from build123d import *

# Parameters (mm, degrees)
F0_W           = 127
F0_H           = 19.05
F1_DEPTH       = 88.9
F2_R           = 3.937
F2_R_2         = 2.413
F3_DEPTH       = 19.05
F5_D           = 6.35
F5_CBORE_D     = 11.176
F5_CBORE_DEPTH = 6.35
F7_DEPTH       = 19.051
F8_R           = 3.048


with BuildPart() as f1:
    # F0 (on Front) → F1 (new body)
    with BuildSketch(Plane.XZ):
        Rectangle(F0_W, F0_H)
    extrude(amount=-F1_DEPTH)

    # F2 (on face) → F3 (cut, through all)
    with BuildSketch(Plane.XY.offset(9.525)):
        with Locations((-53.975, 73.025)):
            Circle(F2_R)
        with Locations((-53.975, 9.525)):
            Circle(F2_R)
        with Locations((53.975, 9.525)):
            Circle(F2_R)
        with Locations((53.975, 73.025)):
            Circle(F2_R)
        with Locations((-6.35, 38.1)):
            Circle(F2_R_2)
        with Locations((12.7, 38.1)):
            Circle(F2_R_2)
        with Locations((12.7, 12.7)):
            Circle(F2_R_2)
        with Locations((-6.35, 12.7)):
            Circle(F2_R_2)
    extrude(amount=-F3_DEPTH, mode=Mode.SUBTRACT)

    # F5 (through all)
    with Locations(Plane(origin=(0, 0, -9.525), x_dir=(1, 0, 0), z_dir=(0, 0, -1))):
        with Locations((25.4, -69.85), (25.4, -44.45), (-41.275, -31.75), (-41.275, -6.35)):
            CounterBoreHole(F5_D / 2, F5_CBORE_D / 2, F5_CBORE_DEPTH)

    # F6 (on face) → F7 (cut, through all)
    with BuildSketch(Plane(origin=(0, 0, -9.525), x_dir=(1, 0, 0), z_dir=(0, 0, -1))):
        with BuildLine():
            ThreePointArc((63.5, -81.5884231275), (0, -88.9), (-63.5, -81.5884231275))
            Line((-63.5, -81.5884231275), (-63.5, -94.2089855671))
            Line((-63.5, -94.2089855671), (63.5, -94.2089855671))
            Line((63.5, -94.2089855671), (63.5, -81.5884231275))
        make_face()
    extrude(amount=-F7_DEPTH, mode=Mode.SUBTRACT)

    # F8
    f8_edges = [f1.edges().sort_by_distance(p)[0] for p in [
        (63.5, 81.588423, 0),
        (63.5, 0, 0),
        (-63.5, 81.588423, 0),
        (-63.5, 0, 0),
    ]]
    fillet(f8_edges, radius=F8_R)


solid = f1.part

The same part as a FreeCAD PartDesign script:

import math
import FreeCAD as App
import Part
import Sketcher

V = App.Vector
Q = App.Units.Quantity


def edges_at(feature, points):
    """Names of the edges that pass closest to the given points."""
    edges = feature.Shape.Edges
    near = lambda p: min(range(len(edges)), key=lambda i: edges[i].distToShape(Part.Vertex(*p))[0])
    return sorted({f"Edge{near(p) + 1}" for p in points})


def add_polygon(sketch, points):
    """Adds a closed chain of lines whose ends are joined by coincident constraints."""
    first, n = sketch.GeometryCount, len(points)
    for a, b in zip(points, points[1:] + points[:1]):
        sketch.addGeometry(Part.LineSegment(App.Vector(*a, 0), App.Vector(*b, 0)), False)
    for i in range(n):
        sketch.addConstraint(Sketcher.Constraint("Coincident", first + i, 2, first + (i + 1) % n, 1))

doc = App.newDocument("Part")
body = doc.addObject("PartDesign::Body", "Body")

sketch1 = body.newObject("Sketcher::SketchObject", "Sketch")
sketch1.AttachmentSupport = (doc.getObject("XZ_Plane"), [""])
sketch1.MapMode = "FlatFace"
add_polygon(sketch1, [(-64, 10), (-64, -10), (64, -10), (64, 10)])
sketch1.addConstraint(Sketcher.Constraint("Vertical", 0))
sketch1.addConstraint(Sketcher.Constraint("Horizontal", 1))
sketch1.addConstraint(Sketcher.Constraint("Vertical", 2))
sketch1.addConstraint(Sketcher.Constraint("Horizontal", 3))
sketch1.addConstraint(Sketcher.Constraint("Symmetric", 0, 2, 2, 2, -1, 1))
sketch1.addConstraint(Sketcher.Constraint("DistanceX", 1, 1, 1, 2, Q("5 in")))
sketch1.addConstraint(Sketcher.Constraint("DistanceY", 0, 2, 0, 1, Q("0.75 in")))
pad1 = body.newObject("PartDesign::Pad", "Pad")
pad1.Profile = sketch1
pad1.Length = Q("3.5 in")
pad1.Reversed = True

sketch2 = body.newObject("Sketcher::SketchObject", "Sketch001")
sketch2.AttachmentSupport = (doc.getObject("XY_Plane"), [""])
sketch2.MapMode = "FlatFace"
sketch2.AttachmentOffset = App.Placement(V(0, 0, 0.375 * 25.4), App.Rotation())
sketch2.addGeometry(Part.Circle(V(-54, 73, 0), V(0, 0, 1), 3.9), False)
sketch2.addGeometry(Part.Circle(V(-54, 9.5, 0), V(0, 0, 1), 3.9), False)
sketch2.addGeometry(Part.Circle(V(54, 9.5, 0), V(0, 0, 1), 3.9), False)
sketch2.addGeometry(Part.Circle(V(54, 73, 0), V(0, 0, 1), 3.9), False)
sketch2.addGeometry(Part.Circle(V(-6.3, 38.1, 0), V(0, 0, 1), 2.4), False)
sketch2.addGeometry(Part.Circle(V(12.7, 38.1, 0), V(0, 0, 1), 2.4), False)
sketch2.addGeometry(Part.Circle(V(12.7, 12.7, 0), V(0, 0, 1), 2.4), False)
sketch2.addGeometry(Part.Circle(V(-6.3, 12.7, 0), V(0, 0, 1), 2.4), False)
sketch2.addConstraint(Sketcher.Constraint("Equal", 0, 1))
sketch2.addConstraint(Sketcher.Constraint("Equal", 1, 2))
sketch2.addConstraint(Sketcher.Constraint("Equal", 2, 3))
sketch2.addConstraint(Sketcher.Constraint("Equal", 4, 5))
sketch2.addConstraint(Sketcher.Constraint("Equal", 5, 6))
sketch2.addConstraint(Sketcher.Constraint("Equal", 6, 7))
sketch2.addConstraint(Sketcher.Constraint("Symmetric", 1, 3, 2, 3, -2))
sketch2.addConstraint(Sketcher.Constraint("Symmetric", 0, 3, 3, 3, -2))
sketch2.addConstraint(Sketcher.Constraint("Horizontal", 4, 3, 5, 3))
sketch2.addConstraint(Sketcher.Constraint("Horizontal", 6, 3, 7, 3))
sketch2.addConstraint(Sketcher.Constraint("Vertical", 0, 3, 1, 3))
sketch2.addConstraint(Sketcher.Constraint("Vertical", 5, 3, 6, 3))
sketch2.addConstraint(Sketcher.Constraint("Vertical", 4, 3, 7, 3))
sketch2.addConstraint(Sketcher.Constraint("Diameter", 0, Q("0.31 in")))
sketch2.addConstraint(Sketcher.Constraint("Diameter", 4, Q("0.19 in")))
sketch2.addConstraint(Sketcher.Constraint("DistanceY", 6, 3, 5, 3, Q("1 in")))
sketch2.addConstraint(Sketcher.Constraint("DistanceY", -1, 1, 4, 3, Q("1.5 in")))
sketch2.addConstraint(Sketcher.Constraint("DistanceX", -1, 1, 5, 3, Q("0.5 in")))
sketch2.addConstraint(Sketcher.Constraint("DistanceY", 1, 3, 0, 3, Q("2.5 in")))
sketch2.addConstraint(Sketcher.Constraint("DistanceX", 4, 3, -1, 1, Q("0.25 in")))
sketch2.addConstraint(Sketcher.Constraint("DistanceX", 1, 3, 2, 3, Q("4.25 in")))
sketch2.addConstraint(Sketcher.Constraint("DistanceY", -1, 1, 0, 3, Q("2.875 in")))
pocket1 = body.newObject("PartDesign::Pocket", "Pocket")
pocket1.Profile = sketch2
pocket1.Type = "ThroughAll"

sketch3 = body.newObject("Sketcher::SketchObject", "Sketch002")
sketch3.AttachmentSupport = (doc.getObject("XY_Plane"), [""])
sketch3.MapMode = "FlatFace"
sketch3.AttachmentOffset = App.Placement(V(0, 0, -0.375 * 25.4), App.Rotation())
sketch3.addGeometry(Part.Circle(V(25.4, 69.8, 0), V(0, 0, 1), 3.2), False)
sketch3.addGeometry(Part.Circle(V(25.4, 44.5, 0), V(0, 0, 1), 3.2), False)
sketch3.addGeometry(Part.Circle(V(-41.3, 31.8, 0), V(0, 0, 1), 3.2), False)
sketch3.addGeometry(Part.Circle(V(-41.3, 6.3, 0), V(0, 0, 1), 3.2), False)
sketch3.addConstraint(Sketcher.Constraint("Equal", 0, 1))
sketch3.addConstraint(Sketcher.Constraint("Equal", 1, 2))
sketch3.addConstraint(Sketcher.Constraint("Equal", 2, 3))
sketch3.addConstraint(Sketcher.Constraint("Vertical", 0, 3, 1, 3))
sketch3.addConstraint(Sketcher.Constraint("Vertical", 2, 3, 3, 3))
sketch3.addConstraint(Sketcher.Constraint("Diameter", 0, Q("0.25 in")))
sketch3.addConstraint(Sketcher.Constraint("DistanceX", -1, 1, 0, 3, Q("1 in")))
sketch3.addConstraint(Sketcher.Constraint("DistanceY", 1, 3, 0, 3, Q("1 in")))
sketch3.addConstraint(Sketcher.Constraint("DistanceY", 3, 3, 2, 3, Q("1 in")))
sketch3.addConstraint(Sketcher.Constraint("DistanceY", 2, 3, 1, 3, Q("0.5 in")))
sketch3.addConstraint(Sketcher.Constraint("DistanceY", -1, 1, 0, 3, Q("2.75 in")))
sketch3.addConstraint(Sketcher.Constraint("DistanceX", 2, 3, -1, 1, Q("1.625 in")))
doc.recompute()
hole = body.newObject("PartDesign::Hole", "Hole")
hole.Profile = sketch3
hole.ThreadType = "None"
hole.Diameter = Q("0.25 in")
hole.DepthType = "ThroughAll"
hole.HoleCutType = "Counterbore"
hole.HoleCutDiameter = Q("0.44 in")
hole.HoleCutDepth = Q("0.25 in")
hole.Reversed = True

sketch4 = body.newObject("Sketcher::SketchObject", "Sketch003")
sketch4.AttachmentSupport = (doc.getObject("XY_Plane"), [""])
sketch4.MapMode = "FlatFace"
sketch4.AttachmentOffset = App.Placement(V(0, 0, -0.375 * 25.4), App.Rotation())
sketch4.addGeometry(Part.ArcOfCircle(Part.Circle(V(0, -191, 0), V(0, 0, 1), 279), math.radians(77), math.radians(103)), False)
sketch4.addGeometry(Part.LineSegment(V(-64, 82, 0), V(-64, 94, 0)), False)
sketch4.addGeometry(Part.LineSegment(V(-64, 94, 0), V(64, 94, 0)), False)
sketch4.addGeometry(Part.LineSegment(V(64, 94, 0), V(64, 82, 0)), False)
sketch4.addConstraint(Sketcher.Constraint("Coincident", 0, 2, 1, 1))
sketch4.addConstraint(Sketcher.Constraint("Coincident", 1, 2, 2, 1))
sketch4.addConstraint(Sketcher.Constraint("Coincident", 2, 2, 3, 1))
sketch4.addConstraint(Sketcher.Constraint("Coincident", 3, 2, 0, 1))
sketch4.addConstraint(Sketcher.Constraint("Vertical", 1))
sketch4.addConstraint(Sketcher.Constraint("Horizontal", 2))
sketch4.addConstraint(Sketcher.Constraint("Vertical", 3))
sketch4.addConstraint(Sketcher.Constraint("Symmetric", 0, 2, 3, 2, -2))
sketch4.addConstraint(Sketcher.Constraint("Radius", 0, Q("11 in")))
sketch4.addConstraint(Sketcher.Constraint("DistanceX", 2, 1, 2, 2, Q("5 in")))
sketch4.addConstraint(Sketcher.Constraint("DistanceY", 0, 3, -1, 1, Q("7.5 in")))
sketch4.addConstraint(Sketcher.Constraint("DistanceY", 1, 1, 1, 2, 12.620562))
pocket2 = body.newObject("PartDesign::Pocket", "Pocket001")
pocket2.Profile = sketch4
pocket2.Type = "ThroughAll"
pocket2.Reversed = True
doc.recompute()

fillet = body.newObject("PartDesign::Fillet", "Fillet")
fillet.Base = (pocket2, edges_at(pocket2, [
    (63.5, 81.588, 0),
    (63.5, 0, 0),
    (-63.5, 81.588, 0),
    (-63.5, 0, 0),
]))
fillet.Radius = Q("0.12 in")

doc.recompute()
